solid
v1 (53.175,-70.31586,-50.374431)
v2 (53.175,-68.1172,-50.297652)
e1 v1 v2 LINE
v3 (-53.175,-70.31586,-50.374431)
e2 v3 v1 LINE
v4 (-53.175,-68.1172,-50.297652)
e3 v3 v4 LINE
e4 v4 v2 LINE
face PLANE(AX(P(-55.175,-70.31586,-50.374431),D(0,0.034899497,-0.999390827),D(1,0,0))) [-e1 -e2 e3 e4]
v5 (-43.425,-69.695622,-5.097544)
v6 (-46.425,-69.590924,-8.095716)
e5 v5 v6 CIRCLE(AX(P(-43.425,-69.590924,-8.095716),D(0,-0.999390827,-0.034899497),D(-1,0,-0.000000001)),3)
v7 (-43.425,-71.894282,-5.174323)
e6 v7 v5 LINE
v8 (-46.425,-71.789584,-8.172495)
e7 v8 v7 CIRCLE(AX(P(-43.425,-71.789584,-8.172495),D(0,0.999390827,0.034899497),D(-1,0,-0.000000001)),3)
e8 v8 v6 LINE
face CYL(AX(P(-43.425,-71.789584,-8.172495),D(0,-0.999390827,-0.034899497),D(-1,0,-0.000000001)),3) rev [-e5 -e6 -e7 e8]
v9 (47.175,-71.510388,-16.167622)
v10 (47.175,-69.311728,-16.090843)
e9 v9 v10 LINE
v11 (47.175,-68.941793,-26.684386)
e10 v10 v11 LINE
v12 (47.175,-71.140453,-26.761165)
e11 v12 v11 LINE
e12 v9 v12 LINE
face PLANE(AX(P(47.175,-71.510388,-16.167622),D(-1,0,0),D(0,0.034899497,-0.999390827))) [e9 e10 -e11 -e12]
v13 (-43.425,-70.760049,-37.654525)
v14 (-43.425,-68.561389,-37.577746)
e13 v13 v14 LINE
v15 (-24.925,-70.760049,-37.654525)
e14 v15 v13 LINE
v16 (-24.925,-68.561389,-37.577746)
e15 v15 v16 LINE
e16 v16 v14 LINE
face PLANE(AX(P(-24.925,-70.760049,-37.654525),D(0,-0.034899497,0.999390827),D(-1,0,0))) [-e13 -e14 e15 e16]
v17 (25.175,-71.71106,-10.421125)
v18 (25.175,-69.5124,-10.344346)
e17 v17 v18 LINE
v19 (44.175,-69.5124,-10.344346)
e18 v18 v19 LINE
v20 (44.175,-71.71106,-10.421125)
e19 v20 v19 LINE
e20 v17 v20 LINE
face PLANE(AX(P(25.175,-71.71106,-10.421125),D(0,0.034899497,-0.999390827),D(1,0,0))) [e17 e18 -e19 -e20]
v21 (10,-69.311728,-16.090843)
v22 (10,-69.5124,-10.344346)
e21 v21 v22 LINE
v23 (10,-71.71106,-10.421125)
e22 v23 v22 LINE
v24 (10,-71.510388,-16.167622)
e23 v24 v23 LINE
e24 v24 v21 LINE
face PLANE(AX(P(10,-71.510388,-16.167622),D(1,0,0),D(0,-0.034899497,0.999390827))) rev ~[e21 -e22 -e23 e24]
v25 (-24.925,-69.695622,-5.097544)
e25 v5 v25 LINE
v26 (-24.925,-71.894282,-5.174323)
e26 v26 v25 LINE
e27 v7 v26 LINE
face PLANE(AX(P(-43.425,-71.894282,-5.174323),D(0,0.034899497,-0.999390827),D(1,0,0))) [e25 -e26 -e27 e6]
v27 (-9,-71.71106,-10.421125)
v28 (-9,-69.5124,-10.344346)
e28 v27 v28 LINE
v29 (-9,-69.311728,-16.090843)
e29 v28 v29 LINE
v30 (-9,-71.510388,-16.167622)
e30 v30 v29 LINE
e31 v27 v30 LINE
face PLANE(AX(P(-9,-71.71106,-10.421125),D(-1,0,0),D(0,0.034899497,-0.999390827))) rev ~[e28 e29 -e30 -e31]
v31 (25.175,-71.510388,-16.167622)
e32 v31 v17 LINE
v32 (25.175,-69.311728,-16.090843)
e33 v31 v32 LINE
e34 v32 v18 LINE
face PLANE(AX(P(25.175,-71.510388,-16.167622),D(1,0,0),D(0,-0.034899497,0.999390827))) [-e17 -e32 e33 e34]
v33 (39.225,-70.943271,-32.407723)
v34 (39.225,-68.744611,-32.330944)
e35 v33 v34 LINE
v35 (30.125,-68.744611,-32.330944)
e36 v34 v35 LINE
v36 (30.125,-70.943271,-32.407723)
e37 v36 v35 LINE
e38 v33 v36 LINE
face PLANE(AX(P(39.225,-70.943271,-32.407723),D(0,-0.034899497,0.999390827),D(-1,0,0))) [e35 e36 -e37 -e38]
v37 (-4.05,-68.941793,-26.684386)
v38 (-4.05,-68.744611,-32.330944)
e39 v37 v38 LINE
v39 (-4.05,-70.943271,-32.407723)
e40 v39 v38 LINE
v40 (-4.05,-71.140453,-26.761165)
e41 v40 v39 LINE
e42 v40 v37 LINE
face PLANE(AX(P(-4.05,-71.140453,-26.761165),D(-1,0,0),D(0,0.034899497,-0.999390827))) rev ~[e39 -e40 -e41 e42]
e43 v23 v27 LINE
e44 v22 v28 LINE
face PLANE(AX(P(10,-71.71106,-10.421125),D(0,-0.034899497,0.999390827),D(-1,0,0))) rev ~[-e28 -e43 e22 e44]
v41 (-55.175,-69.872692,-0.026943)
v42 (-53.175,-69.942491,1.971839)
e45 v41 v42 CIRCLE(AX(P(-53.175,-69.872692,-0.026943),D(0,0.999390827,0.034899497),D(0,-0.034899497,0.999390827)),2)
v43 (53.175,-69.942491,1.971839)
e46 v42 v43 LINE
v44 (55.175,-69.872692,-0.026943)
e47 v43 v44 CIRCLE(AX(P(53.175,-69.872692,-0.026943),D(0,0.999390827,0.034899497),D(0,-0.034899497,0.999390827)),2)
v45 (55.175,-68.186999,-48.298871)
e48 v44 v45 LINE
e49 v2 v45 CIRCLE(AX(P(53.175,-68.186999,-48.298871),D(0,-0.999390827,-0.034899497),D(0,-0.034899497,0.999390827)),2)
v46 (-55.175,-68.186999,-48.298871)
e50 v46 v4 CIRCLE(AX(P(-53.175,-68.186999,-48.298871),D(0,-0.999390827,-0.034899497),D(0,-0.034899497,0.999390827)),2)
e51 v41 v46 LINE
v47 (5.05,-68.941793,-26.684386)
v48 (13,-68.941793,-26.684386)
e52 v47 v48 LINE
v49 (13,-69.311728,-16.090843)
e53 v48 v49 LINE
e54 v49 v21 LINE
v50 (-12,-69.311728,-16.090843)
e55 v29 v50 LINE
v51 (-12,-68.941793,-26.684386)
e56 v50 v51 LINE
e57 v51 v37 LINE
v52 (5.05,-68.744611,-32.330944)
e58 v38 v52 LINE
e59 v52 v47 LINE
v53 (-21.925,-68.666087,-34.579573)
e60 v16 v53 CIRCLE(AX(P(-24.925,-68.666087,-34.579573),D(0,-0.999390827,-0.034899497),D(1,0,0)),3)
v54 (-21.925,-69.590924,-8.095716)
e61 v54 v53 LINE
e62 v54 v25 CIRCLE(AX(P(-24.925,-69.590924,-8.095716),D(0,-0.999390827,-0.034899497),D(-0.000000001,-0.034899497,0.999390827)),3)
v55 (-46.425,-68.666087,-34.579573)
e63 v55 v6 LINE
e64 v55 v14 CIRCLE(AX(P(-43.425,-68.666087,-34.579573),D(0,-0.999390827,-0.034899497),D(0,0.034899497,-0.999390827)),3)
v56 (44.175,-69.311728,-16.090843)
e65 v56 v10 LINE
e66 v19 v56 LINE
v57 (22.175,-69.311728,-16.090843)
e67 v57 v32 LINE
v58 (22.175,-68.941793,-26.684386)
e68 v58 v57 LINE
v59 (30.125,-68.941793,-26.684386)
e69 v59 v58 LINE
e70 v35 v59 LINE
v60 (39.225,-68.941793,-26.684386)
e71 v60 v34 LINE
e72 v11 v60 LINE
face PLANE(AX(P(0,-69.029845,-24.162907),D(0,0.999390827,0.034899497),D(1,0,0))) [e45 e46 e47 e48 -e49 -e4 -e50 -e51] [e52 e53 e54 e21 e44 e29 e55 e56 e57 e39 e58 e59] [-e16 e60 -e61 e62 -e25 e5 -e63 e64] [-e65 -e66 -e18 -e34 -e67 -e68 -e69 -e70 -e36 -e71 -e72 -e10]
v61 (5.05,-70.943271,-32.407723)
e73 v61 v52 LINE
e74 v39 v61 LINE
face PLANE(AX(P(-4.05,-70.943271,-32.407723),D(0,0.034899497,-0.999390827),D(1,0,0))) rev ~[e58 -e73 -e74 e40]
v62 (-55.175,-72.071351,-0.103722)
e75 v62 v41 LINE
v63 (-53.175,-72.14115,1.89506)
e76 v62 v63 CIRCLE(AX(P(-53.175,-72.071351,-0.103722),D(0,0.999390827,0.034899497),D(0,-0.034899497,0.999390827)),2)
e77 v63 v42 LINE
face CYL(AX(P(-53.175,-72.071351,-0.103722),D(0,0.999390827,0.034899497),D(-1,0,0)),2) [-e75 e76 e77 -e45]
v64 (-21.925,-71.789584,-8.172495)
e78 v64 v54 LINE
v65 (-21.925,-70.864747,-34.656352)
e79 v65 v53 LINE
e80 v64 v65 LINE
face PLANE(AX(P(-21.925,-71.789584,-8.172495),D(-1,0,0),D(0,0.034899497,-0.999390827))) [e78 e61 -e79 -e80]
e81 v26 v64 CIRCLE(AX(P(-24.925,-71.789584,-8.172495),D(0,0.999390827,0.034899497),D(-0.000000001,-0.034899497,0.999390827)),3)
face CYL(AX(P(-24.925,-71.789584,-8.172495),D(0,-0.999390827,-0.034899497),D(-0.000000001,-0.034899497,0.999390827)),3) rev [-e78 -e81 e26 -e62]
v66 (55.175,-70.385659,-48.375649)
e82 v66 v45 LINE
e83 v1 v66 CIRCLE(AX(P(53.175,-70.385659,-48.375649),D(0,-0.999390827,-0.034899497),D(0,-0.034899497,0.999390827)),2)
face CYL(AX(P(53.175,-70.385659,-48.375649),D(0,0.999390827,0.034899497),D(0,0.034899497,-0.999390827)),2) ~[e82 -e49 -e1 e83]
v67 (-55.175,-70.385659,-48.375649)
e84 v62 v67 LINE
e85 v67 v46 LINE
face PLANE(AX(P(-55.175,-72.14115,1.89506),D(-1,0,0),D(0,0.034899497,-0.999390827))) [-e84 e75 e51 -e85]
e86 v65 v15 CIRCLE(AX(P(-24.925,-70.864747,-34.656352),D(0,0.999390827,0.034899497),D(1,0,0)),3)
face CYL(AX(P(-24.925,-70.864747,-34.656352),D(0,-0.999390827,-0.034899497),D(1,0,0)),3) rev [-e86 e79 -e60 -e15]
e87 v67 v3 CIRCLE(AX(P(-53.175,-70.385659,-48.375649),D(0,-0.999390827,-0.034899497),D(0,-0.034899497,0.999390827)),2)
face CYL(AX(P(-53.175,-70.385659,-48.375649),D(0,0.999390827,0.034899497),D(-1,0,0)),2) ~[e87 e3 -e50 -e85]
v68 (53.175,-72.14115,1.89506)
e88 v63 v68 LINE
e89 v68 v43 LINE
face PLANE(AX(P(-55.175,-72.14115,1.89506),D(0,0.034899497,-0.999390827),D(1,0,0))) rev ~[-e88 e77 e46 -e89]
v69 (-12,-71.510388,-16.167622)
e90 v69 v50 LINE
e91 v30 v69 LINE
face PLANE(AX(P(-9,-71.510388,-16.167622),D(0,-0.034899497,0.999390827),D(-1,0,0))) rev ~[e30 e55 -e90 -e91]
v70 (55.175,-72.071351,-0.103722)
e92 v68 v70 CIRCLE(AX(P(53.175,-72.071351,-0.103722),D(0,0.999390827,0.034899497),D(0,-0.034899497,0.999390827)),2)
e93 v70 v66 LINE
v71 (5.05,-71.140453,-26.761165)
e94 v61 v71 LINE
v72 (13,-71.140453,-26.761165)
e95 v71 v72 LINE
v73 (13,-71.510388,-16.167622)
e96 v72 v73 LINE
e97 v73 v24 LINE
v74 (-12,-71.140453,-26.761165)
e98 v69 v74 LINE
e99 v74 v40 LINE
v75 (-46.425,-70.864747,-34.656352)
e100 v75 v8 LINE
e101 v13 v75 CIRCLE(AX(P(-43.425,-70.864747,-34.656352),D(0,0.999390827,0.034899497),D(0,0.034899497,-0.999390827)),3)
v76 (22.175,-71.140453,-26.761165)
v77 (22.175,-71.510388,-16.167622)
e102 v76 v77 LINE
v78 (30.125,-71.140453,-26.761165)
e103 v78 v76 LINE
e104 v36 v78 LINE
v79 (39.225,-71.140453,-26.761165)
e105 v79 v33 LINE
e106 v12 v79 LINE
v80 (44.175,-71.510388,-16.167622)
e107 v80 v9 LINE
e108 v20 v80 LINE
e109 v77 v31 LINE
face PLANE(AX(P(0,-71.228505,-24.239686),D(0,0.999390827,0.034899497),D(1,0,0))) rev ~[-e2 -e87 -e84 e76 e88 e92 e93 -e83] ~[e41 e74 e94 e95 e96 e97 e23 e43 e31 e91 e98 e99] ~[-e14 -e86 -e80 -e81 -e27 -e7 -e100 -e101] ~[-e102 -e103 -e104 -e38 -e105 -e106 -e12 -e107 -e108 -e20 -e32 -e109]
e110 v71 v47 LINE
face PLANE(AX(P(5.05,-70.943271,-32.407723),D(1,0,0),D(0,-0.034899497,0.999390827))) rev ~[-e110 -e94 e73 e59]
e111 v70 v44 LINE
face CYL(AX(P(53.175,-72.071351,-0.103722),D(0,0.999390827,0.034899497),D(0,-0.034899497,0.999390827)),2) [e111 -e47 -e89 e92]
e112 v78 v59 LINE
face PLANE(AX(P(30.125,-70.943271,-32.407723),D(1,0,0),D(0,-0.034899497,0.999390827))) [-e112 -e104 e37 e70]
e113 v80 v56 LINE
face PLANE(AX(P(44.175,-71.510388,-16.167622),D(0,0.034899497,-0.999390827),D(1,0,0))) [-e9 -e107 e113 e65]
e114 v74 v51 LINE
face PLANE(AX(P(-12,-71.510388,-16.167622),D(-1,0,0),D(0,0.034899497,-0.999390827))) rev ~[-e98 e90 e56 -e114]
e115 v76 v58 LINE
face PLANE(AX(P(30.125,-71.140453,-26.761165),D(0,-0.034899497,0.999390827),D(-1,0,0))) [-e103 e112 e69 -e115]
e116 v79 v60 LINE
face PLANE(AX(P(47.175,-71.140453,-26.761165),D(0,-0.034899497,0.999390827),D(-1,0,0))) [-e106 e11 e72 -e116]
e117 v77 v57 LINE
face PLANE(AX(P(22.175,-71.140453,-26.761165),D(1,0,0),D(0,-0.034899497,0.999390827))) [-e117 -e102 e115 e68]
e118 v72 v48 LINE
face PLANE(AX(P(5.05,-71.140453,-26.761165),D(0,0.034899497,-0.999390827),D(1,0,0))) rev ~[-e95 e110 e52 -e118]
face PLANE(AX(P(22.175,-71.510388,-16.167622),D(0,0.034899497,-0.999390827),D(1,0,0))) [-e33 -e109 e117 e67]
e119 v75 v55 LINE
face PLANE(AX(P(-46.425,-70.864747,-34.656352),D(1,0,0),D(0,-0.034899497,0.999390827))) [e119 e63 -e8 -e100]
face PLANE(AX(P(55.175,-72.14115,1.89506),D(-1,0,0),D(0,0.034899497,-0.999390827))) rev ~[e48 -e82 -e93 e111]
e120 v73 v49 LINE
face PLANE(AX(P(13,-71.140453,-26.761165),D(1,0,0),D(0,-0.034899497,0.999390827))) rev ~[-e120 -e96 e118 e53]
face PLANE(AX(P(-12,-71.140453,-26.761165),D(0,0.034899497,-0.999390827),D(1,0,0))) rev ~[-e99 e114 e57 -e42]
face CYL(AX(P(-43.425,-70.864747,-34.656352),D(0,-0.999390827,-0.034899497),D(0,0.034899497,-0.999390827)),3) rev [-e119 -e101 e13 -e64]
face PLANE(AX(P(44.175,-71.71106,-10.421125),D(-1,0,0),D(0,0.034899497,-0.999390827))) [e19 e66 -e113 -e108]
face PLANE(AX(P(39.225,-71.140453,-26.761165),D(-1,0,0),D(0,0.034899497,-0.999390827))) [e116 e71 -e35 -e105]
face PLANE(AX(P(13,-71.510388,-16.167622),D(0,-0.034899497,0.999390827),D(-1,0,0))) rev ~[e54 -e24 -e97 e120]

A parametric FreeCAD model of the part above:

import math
import FreeCAD as App
import Part
import Sketcher
from FreeCAD import Vector
Q = App.Units.Quantity


def edges_at(feature, points):
    """Names of the edges that pass closest to the given points."""
    edges = feature.Shape.Edges
    near = lambda p: min(range(len(edges)), key=lambda i: edges[i].distToShape(Part.Vertex(*p))[0])
    return sorted({f"Edge{near(p) + 1}" for p in points})


def add_polygon(sketch, points):
    """Adds a closed chain of lines whose ends are joined by coincident constraints."""
    first, n = sketch.GeometryCount, len(points)
    for a, b in zip(points, points[1:] + points[:1]):
        sketch.addGeometry(Part.LineSegment(App.Vector(*a, 0), App.Vector(*b, 0)), False)
    for i in range(n):
        sketch.addConstraint(Sketcher.Constraint("Coincident", first + i, 2, first + (i + 1) % n, 1))

doc = App.newDocument("Part")
body = doc.addObject("PartDesign::Body", "Body")

# Sketch on an angled plane
sketch1 = body.newObject("Sketcher::SketchObject", "Sketch")
sketch1.Placement = App.Placement(Vector(0, -71.987188, -2.513848), App.Rotation(Vector(1, 0, 0), Vector(0, 0.034899497, -0.999390827), Vector(0, 0.999390827, 0.034899497), "ZXY"))
add_polygon(sketch1, [(-55.175, 47.889756), (-55.175, -4.411595), (55.175, -4.411595), (55.175, 47.889756)])  # lines 0-3
sketch1.addConstraint([
    Sketcher.Constraint("Vertical", 0),
    Sketcher.Constraint("Horizontal", 1),
    Sketcher.Constraint("Vertical", 2),
    Sketcher.Constraint("Horizontal", 3),
    Sketcher.Constraint("DistanceX", 1, 1, 1, 2, Q("110.35 mm")),
    Sketcher.Constraint("DistanceX", 0, 2, -1, 1, Q("55.175 mm")),
    Sketcher.Constraint("DistanceY", 0, 2, 0, 1, Q("52.301352 mm")),
    Sketcher.Constraint("DistanceY", 0, 2, -1, 1, Q("4.411595 mm")),
])
pad1 = body.newObject("PartDesign::Pad", "Pad")
pad1.Profile = sketch1
pad1.Length = 2.2

# Sketch on an angled plane
sketch2 = body.newObject("Sketcher::SketchObject", "Sketch001")
sketch2.Placement = App.Placement(Vector(0, -71.987188, -2.513848), App.Rotation(Vector(1, 0, 0), Vector(0, -0.034899497, 0.999390827), Vector(0, -0.999390827, -0.034899497), "ZXY"))
add_polygon(sketch2, [(-4.05, -24.262097), (-4.05, -29.912097), (5.05, -29.912097), (5.05, -24.262097), (13, -24.262097), (13, -13.662097), (10, -13.662097), (10, -7.912097), (-9, -7.912097), (-9, -13.662097), (-12, -13.662097), (-12, -24.262097)])  # lines 0-11
sketch2.addConstraint([
    Sketcher.Constraint("Vertical", 0),
    Sketcher.Constraint("Horizontal", 1),
    Sketcher.Constraint("Vertical", 2),
    Sketcher.Constraint("Horizontal", 3),
    Sketcher.Constraint("Vertical", 4),
    Sketcher.Constraint("Horizontal", 5),
    Sketcher.Constraint("Vertical", 6),
    Sketcher.Constraint("Horizontal", 7),
    Sketcher.Constraint("Vertical", 8),
    Sketcher.Constraint("Horizontal", 9),
    Sketcher.Constraint("Vertical", 10),
    Sketcher.Constraint("Horizontal", 11),
    Sketcher.Constraint("Horizontal", 5, 2, 8, 2),
    Sketcher.Constraint("Horizontal", 3, 2, 10, 2),
    Sketcher.Constraint("Equal", 5, 9),
    Sketcher.Constraint("Equal", 3, 11),
    Sketcher.Constraint("DistanceX", 5, 2, 5, 1, Q("3 mm")),
    Sketcher.Constraint("DistanceX", 7, 2, 7, 1, Q("19 mm")),
    Sketcher.Constraint("DistanceX", 1, 1, 1, 2, Q("9.1 mm")),
    Sketcher.Constraint("DistanceY", 4, 1, 4, 2, Q("10.6 mm")),
    Sketcher.Constraint("DistanceX", -1, 1, 3, 2, Q("13 mm")),
    Sketcher.Constraint("DistanceY", 1, 2, 6, 2, Q("22 mm")),
    Sketcher.Constraint("DistanceY", 0, 2, 0, 1, Q("5.65 mm")),
    Sketcher.Constraint("DistanceY", 0, 2, -1, 1, Q("29.912097 mm")),
])
pocket1 = body.newObject("PartDesign::Pocket", "Pocket")
pocket1.Profile = sketch2
pocket1.Type = "UpToFirst"

# Sketch on an angled plane
sketch3 = body.newObject("Sketcher::SketchObject", "Sketch002")
sketch3.Placement = App.Placement(Vector(0, -71.987188, -2.513848), App.Rotation(Vector(1, 0, 0), Vector(0, -0.034899497, 0.999390827), Vector(0, -0.999390827, -0.034899497), "ZXY"))
sketch3.addGeometry([
    Part.LineSegment(Vector(-24.925, -2.662097, 0), Vector(-43.425, -2.662097, 0)),  # 0
    Part.ArcOfCircle(Part.Circle(Vector(-43.425, -5.662097, 0), Vector(0, 0, 1), 3), math.radians(90), math.radians(180)),  # 1
    Part.LineSegment(Vector(-46.425, -5.662097, 0), Vector(-46.425, -32.162097, 0)),  # 2
    Part.ArcOfCircle(Part.Circle(Vector(-43.425, -32.162097, 0), Vector(0, 0, 1), 3), math.radians(180), math.radians(270)),  # 3
    Part.LineSegment(Vector(-43.425, -35.162097, 0), Vector(-24.925, -35.162097, 0)),  # 4
    Part.ArcOfCircle(Part.Circle(Vector(-24.925, -32.162097, 0), Vector(0, 0, 1), 3), math.radians(-90), math.radians(0)),  # 5
    Part.LineSegment(Vector(-21.925, -32.162097, 0), Vector(-21.925, -5.662097, 0)),  # 6
    Part.ArcOfCircle(Part.Circle(Vector(-24.925, -5.662097, 0), Vector(0, 0, 1), 3), math.radians(0), math.radians(90)),  # 7
], False)
sketch3.addConstraint([
    Sketcher.Constraint("Tangent", 0, 2, 1, 1),
    Sketcher.Constraint("Tangent", 1, 2, 2, 1),
    Sketcher.Constraint("Tangent", 2, 2, 3, 1),
    Sketcher.Constraint("Tangent", 3, 2, 4, 1),
    Sketcher.Constraint("Tangent", 4, 2, 5, 1),
    Sketcher.Constraint("Tangent", 5, 2, 6, 1),
    Sketcher.Constraint("Tangent", 6, 2, 7, 1),
    Sketcher.Constraint("Tangent", 7, 2, 0, 1),
    Sketcher.Constraint("Horizontal", 0),
    Sketcher.Constraint("Vertical", 2),
    Sketcher.Constraint("Horizontal", 4),
    Sketcher.Constraint("Vertical", 6),
    Sketcher.Constraint("Equal", 1, 3),
    Sketcher.Constraint("Equal", 3, 5),
    Sketcher.Constraint("Equal", 5, 7),
    Sketcher.Constraint("Radius", 1, Q("3 mm")),
    Sketcher.Constraint("DistanceX", 0, 2, 0, 1, Q("18.5 mm")),
    Sketcher.Constraint("DistanceY", 2, 2, 2, 1, Q("26.5 mm")),
    Sketcher.Constraint("DistanceX", 1, 3, -1, 1, Q("43.425 mm")),
    Sketcher.Constraint("DistanceY", 1, 3, -1, 1, Q("5.662097 mm")),
])
pocket2 = body.newObject("PartDesign::Pocket", "Pocket001")
pocket2.Profile = sketch3
pocket2.Type = "UpToFirst"

# Sketch on an angled plane
sketch4 = body.newObject("Sketcher::SketchObject", "Sketch003")
sketch4.Placement = App.Placement(Vector(0, -71.987188, -2.513848), App.Rotation(Vector(1, 0, 0), Vector(0, -0.034899497, 0.999390827), Vector(0, -0.999390827, -0.034899497), "ZXY"))
add_polygon(sketch4, [(22.175, -24.262097), (30.125, -24.262097), (30.125, -29.912097), (39.225, -29.912097), (39.225, -24.262097), (47.175, -24.262097), (47.175, -13.662097), (44.175, -13.662097), (44.175, -7.912097), (25.175, -7.912097), (25.175, -13.662097), (22.175, -13.662097)])  # lines 0-11
sketch4.addConstraint([
    Sketcher.Constraint("Horizontal", 0),
    Sketcher.Constraint("Vertical", 1),
    Sketcher.Constraint("Horizontal", 2),
    Sketcher.Constraint("Vertical", 3),
    Sketcher.Constraint("Horizontal", 4),
    Sketcher.Constraint("Vertical", 5),
    Sketcher.Constraint("Horizontal", 6),
    Sketcher.Constraint("Vertical", 7),
    Sketcher.Constraint("Horizontal", 8),
    Sketcher.Constraint("Vertical", 9),
    Sketcher.Constraint("Horizontal", 10),
    Sketcher.Constraint("Vertical", 11),
    Sketcher.Constraint("Horizontal", 0, 2, 3, 2),
    Sketcher.Constraint("Horizontal", 6, 2, 9, 2),
    Sketcher.Constraint("Equal", 0, 4),
    Sketcher.Constraint("Equal", 6, 10),
    Sketcher.Constraint("DistanceX", 6, 2, 6, 1, Q("3 mm")),
    Sketcher.Constraint("DistanceX", 8, 2, 8, 1, Q("19 mm")),
    Sketcher.Constraint("DistanceX", 2, 1, 2, 2, Q("9.1 mm")),
    Sketcher.Constraint("DistanceY", 5, 1, 5, 2, Q("10.6 mm")),
    Sketcher.Constraint("DistanceY", 1, 2, 8, 2, Q("22 mm")),
    Sketcher.Constraint("DistanceY", 1, 2, 1, 1, Q("5.65 mm")),
    Sketcher.Constraint("DistanceX", -1, 1, 0, 2, Q("30.125 mm")),
    Sketcher.Constraint("DistanceY", 0, 2, -1, 1, Q("24.262097 mm")),
])
pocket3 = body.newObject("PartDesign::Pocket", "Pocket002")
pocket3.Profile = sketch4
pocket3.Type = "UpToFirst"
doc.recompute()

fillet = body.newObject("PartDesign::Fillet", "Fillet")
fillet.Base = (pocket3, edges_at(pocket3, [
    (-55.175, -69.217, -50.336),
    (55.175, -69.217, -50.336),
    (55.175, -71.042, 1.933),
    (-55.175, -71.042, 1.933),
]))
fillet.Radius = 2

doc.recompute()
